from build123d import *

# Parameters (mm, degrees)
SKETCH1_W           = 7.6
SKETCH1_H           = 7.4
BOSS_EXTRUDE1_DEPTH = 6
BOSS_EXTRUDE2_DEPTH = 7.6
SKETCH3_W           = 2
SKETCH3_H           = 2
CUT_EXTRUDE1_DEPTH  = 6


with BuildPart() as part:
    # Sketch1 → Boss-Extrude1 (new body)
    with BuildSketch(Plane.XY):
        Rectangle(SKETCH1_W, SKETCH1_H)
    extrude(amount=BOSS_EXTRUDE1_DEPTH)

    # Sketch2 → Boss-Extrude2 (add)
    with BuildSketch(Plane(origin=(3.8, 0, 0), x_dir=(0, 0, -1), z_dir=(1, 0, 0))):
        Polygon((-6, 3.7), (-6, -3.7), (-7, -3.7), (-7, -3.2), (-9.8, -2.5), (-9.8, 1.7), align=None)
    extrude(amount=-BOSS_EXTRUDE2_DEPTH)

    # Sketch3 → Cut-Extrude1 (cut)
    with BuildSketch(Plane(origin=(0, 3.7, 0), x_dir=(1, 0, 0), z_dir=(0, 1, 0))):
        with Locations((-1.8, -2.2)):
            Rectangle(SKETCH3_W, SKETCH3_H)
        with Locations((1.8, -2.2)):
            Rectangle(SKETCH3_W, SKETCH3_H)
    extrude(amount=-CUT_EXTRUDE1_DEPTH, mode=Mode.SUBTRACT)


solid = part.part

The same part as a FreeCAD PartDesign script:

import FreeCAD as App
import Part
import Sketcher
from FreeCAD import Vector

doc = App.newDocument("Part")
body = doc.addObject("PartDesign::Body", "Body")

sketch1 = doc.addObject("Sketcher::SketchObject", "Sketch")
body.addObject(sketch1)
sketch1.AttachmentSupport = (doc.XY_Plane, [""])
sketch1.MapMode = "FlatFace"
sketch1.addGeometry(Part.LineSegment(Vector(-3.8, 3.7, 0), Vector(-3.8, -3.7, 0)), False)
sketch1.addGeometry(Part.LineSegment(Vector(-3.8, -3.7, 0), Vector(3.8, -3.7, 0)), False)
sketch1.addGeometry(Part.LineSegment(Vector(3.8, -3.7, 0), Vector(3.8, 3.7, 0)), False)
sketch1.addGeometry(Part.LineSegment(Vector(3.8, 3.7, 0), Vector(-3.8, 3.7, 0)), False)
sketch1.addConstraint(Sketcher.Constraint("Coincident", 0, 2, 1, 1))
sketch1.addConstraint(Sketcher.Constraint("Coincident", 1, 2, 2, 1))
sketch1.addConstraint(Sketcher.Constraint("Coincident", 2, 2, 3, 1))
sketch1.addConstraint(Sketcher.Constraint("Coincident", 3, 2, 0, 1))
sketch1.addConstraint(Sketcher.Constraint("Vertical", 0))
sketch1.addConstraint(Sketcher.Constraint("Horizontal", 1))
sketch1.addConstraint(Sketcher.Constraint("Vertical", 2))
sketch1.addConstraint(Sketcher.Constraint("Horizontal", 3))
sketch1.addConstraint(Sketcher.Constraint("Symmetric", 0, 2, 2, 2, -1, 1))
sketch1.addConstraint(Sketcher.Constraint("DistanceX", 1, 1, 1, 2, 7.6))
sketch1.addConstraint(Sketcher.Constraint("DistanceY", 0, 2, 0, 1, 7.4))
pad1 = doc.addObject("PartDesign::Pad", "Pad")
body.addObject(pad1)
pad1.Profile = sketch1
pad1.Length = 6

sketch2 = doc.addObject("Sketcher::SketchObject", "Sketch001")
body.addObject(sketch2)
sketch2.AttachmentSupport = (doc.YZ_Plane, [""])
sketch2.MapMode = "FlatFace"
sketch2.AttachmentOffset = App.Placement(Vector(0, 0, 3.8), App.Rotation())
sketch2.addGeometry(Part.LineSegment(Vector(-3.7, 6, 0), Vector(3.7, 6, 0)), False)
sketch2.addGeometry(Part.LineSegment(Vector(3.7, 6, 0), Vector(1.7, 9.8, 0)), False)
sketch2.addGeometry(Part.LineSegment(Vector(1.7, 9.8, 0), Vector(-2.5, 9.8, 0)), False)
sketch2.addGeometry(Part.LineSegment(Vector(-2.5, 9.8, 0), Vector(-3.2, 7, 0)), False)
sketch2.addGeometry(Part.LineSegment(Vector(-3.2, 7, 0), Vector(-3.7, 7, 0)), False)
sketch2.addGeometry(Part.LineSegment(Vector(-3.7, 7, 0), Vector(-3.7, 6, 0)), False)
sketch2.addConstraint(Sketcher.Constraint("Coincident", 0, 2, 1, 1))
sketch2.addConstraint(Sketcher.Constraint("Coincident", 1, 2, 2, 1))
sketch2.addConstraint(Sketcher.Constraint("Coincident", 2, 2, 3, 1))
sketch2.addConstraint(Sketcher.Constraint("Coincident", 3, 2, 4, 1))
sketch2.addConstraint(Sketcher.Constraint("Coincident", 4, 2, 5, 1))
sketch2.addConstraint(Sketcher.Constraint("Coincident", 5, 2, 0, 1))
sketch2.addConstraint(Sketcher.Constraint("Horizontal", 0))
sketch2.addConstraint(Sketcher.Constraint("Horizontal", 2))
sketch2.addConstraint(Sketcher.Constraint("Horizontal", 4))
sketch2.addConstraint(Sketcher.Constraint("Vertical", 5))
sketch2.addConstraint(Sketcher.Constraint("DistanceY", 5, 2, 5, 1, 1.0))
sketch2.addConstraint(Sketcher.Constraint("DistanceX", 0, 1, 0, 2, 7.4))
sketch2.addConstraint(Sketcher.Constraint("DistanceX", 2, 2, 2, 1, 4.2))
sketch2.addConstraint(Sketcher.Constraint("DistanceX", 4, 2, 4, 1, 0.5))
sketch2.addConstraint(Sketcher.Constraint("DistanceY", -1, 1, 0, 2, 6.0))
sketch2.addConstraint(Sketcher.Constraint("DistanceX", 1, 2, 0, 2, 2.0))
sketch2.addConstraint(Sketcher.Constraint("DistanceX", -1, 1, 0, 2, 3.7))
sketch2.addConstraint(Sketcher.Constraint("DistanceY", -1, 1, 1, 2, 9.8))
pad2 = doc.addObject("PartDesign::Pad", "Pad001")
body.addObject(pad2)
pad2.Profile = sketch2
pad2.Length = 7.6
pad2.Reversed = True

sketch3 = doc.addObject("Sketcher::SketchObject", "Sketch002")
body.addObject(sketch3)
sketch3.AttachmentSupport = (doc.XZ_Plane, [""])
sketch3.MapMode = "FlatFace"
sketch3.AttachmentOffset = App.Placement(Vector(0, 0, -3.7), App.Rotation())
sketch3.addGeometry(Part.LineSegment(Vector(-2.8, 1.2, 0), Vector(-2.8, 3.2, 0)), False)
sketch3.addGeometry(Part.LineSegment(Vector(-2.8, 3.2, 0), Vector(-0.8, 3.2, 0)), False)
sketch3.addGeometry(Part.LineSegment(Vector(-0.8, 3.2, 0), Vector(-0.8, 1.2, 0)), False)
sketch3.addGeometry(Part.LineSegment(Vector(-0.8, 1.2, 0), Vector(-2.8, 1.2, 0)), False)
sketch3.addGeometry(Part.LineSegment(Vector(0.8, 1.2, 0), Vector(0.8, 3.2, 0)), False)
sketch3.addGeometry(Part.LineSegment(Vector(0.8, 3.2, 0), Vector(2.8, 3.2, 0)), False)
sketch3.addGeometry(Part.LineSegment(Vector(2.8, 3.2, 0), Vector(2.8, 1.2, 0)), False)
sketch3.addGeometry(Part.LineSegment(Vector(2.8, 1.2, 0), Vector(0.8, 1.2, 0)), False)
sketch3.addConstraint(Sketcher.Constraint("Coincident", 0, 2, 1, 1))
sketch3.addConstraint(Sketcher.Constraint("Coincident", 1, 2, 2, 1))
sketch3.addConstraint(Sketcher.Constraint("Coincident", 2, 2, 3, 1))
sketch3.addConstraint(Sketcher.Constraint("Coincident", 3, 2, 0, 1))
sketch3.addConstraint(Sketcher.Constraint("Coincident", 4, 2, 5, 1))
sketch3.addConstraint(Sketcher.Constraint("Coincident", 5, 2, 6, 1))
sketch3.addConstraint(Sketcher.Constraint("Coincident", 6, 2, 7, 1))
sketch3.addConstraint(Sketcher.Constraint("Coincident", 7, 2, 4, 1))
sketch3.addConstraint(Sketcher.Constraint("Vertical", 0))
sketch3.addConstraint(Sketcher.Constraint("Horizontal", 1))
sketch3.addConstraint(Sketcher.Constraint("Vertical", 2))
sketch3.addConstraint(Sketcher.Constraint("Horizontal", 3))
sketch3.addConstraint(Sketcher.Constraint("Vertical", 4))
sketch3.addConstraint(Sketcher.Constraint("Horizontal", 5))
sketch3.addConstraint(Sketcher.Constraint("Vertical", 6))
sketch3.addConstraint(Sketcher.Constraint("Horizontal", 7))
sketch3.addConstraint(Sketcher.Constraint("Symmetric", 1, 2, 4, 2, -2))
sketch3.addConstraint(Sketcher.Constraint("Symmetric", 3, 2, 6, 2, -2))
sketch3.addConstraint(Sketcher.Constraint("Equal", 7, 0))
sketch3.addConstraint(Sketcher.Constraint("DistanceX", 1, 1, 1, 2, 2.0))
sketch3.addConstraint(Sketcher.Constraint("DistanceX", 0, 2, -1, 1, 2.8))
sketch3.addConstraint(Sketcher.Constraint("DistanceY", -1, 1, 0, 2, 3.2))
pocket1 = doc.addObject("PartDesign::Pocket", "Pocket")
body.addObject(pocket1)
pocket1.Profile = sketch3
pocket1.Length = 6
pocket1.Reversed = True

doc.recompute()
